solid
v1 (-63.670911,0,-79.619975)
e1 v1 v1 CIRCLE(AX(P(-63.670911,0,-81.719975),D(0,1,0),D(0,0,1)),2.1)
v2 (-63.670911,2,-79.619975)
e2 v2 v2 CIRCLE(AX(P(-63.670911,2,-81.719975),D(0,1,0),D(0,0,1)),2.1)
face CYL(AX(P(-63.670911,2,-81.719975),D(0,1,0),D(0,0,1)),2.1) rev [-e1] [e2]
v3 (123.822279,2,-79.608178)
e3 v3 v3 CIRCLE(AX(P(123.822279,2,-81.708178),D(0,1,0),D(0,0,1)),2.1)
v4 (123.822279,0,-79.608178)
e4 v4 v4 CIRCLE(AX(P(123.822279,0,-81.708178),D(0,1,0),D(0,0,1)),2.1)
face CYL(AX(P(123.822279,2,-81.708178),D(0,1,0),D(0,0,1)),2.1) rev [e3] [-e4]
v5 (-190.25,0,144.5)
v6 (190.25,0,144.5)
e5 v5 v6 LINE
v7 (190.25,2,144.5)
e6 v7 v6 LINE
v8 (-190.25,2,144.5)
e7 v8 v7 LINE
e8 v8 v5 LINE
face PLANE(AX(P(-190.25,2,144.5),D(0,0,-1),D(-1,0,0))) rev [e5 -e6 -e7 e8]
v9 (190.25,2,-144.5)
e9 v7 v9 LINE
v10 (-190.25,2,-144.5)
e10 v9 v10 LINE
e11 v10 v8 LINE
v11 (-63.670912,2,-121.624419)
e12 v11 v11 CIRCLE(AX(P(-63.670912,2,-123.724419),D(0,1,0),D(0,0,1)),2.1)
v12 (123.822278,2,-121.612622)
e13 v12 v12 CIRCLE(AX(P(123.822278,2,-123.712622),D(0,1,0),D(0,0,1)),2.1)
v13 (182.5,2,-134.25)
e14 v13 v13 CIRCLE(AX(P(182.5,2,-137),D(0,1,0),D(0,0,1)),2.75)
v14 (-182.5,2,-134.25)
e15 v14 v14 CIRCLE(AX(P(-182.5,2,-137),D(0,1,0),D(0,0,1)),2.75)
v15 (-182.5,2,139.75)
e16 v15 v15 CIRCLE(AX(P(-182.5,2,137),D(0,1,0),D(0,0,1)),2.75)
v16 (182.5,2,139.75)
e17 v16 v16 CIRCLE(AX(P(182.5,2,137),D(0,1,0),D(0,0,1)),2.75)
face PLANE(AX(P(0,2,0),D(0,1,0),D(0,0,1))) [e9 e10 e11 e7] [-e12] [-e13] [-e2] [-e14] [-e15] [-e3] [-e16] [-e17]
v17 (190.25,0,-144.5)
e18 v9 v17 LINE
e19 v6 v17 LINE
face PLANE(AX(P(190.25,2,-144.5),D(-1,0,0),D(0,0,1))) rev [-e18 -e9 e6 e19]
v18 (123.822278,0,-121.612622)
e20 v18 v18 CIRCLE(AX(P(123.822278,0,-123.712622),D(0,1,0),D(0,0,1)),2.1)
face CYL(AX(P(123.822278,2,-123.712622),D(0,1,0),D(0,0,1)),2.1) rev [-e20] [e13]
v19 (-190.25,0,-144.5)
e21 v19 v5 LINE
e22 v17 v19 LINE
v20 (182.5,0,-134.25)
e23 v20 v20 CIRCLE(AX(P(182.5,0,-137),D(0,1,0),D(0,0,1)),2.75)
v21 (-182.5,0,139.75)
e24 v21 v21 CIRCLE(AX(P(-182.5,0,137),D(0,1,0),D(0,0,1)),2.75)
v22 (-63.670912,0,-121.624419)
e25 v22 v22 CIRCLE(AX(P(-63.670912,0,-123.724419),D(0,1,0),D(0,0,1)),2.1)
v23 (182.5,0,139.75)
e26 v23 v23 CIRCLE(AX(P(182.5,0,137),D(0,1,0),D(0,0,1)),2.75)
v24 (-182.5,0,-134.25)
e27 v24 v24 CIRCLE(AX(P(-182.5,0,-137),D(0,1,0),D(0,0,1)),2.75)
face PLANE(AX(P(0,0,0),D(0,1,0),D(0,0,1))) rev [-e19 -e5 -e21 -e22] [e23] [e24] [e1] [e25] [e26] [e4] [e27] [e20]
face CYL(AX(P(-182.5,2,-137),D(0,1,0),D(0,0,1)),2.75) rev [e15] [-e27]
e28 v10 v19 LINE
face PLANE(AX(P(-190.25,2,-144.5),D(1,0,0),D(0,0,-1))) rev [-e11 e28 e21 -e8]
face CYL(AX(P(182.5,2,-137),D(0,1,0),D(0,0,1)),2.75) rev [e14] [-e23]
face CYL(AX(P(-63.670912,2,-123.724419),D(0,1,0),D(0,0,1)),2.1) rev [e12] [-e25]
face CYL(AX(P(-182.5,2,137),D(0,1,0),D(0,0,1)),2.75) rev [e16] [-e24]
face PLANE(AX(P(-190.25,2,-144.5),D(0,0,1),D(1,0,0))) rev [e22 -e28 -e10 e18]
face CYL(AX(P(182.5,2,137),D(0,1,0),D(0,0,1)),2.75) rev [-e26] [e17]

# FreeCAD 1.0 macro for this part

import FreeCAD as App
import Part
import Sketcher
from FreeCAD import Vector
Q = App.Units.Quantity

doc = App.newDocument("Part")
body = doc.addObject("PartDesign::Body", "Body")

sketch1 = doc.addObject("Sketcher::SketchObject", "Sketch")
body.addObject(sketch1)
sketch1.AttachmentSupport = (doc.XZ_Plane, [""])
sketch1.MapMode = "FlatFace"
sketch1.addGeometry(Part.LineSegment(Vector(-190, -144, 0), Vector(-190, 144, 0)), False)
sketch1.addGeometry(Part.LineSegment(Vector(-190, 144, 0), Vector(190, 144, 0)), False)
sketch1.addGeometry(Part.LineSegment(Vector(190, 144, 0), Vector(190, -144, 0)), False)
sketch1.addGeometry(Part.LineSegment(Vector(190, -144, 0), Vector(-190, -144, 0)), False)
sketch1.addConstraint(Sketcher.Constraint("Coincident", 0, 2, 1, 1))
sketch1.addConstraint(Sketcher.Constraint("Coincident", 1, 2, 2, 1))
sketch1.addConstraint(Sketcher.Constraint("Coincident", 2, 2, 3, 1))
sketch1.addConstraint(Sketcher.Constraint("Coincident", 3, 2, 0, 1))
sketch1.addConstraint(Sketcher.Constraint("Vertical", 0))
sketch1.addConstraint(Sketcher.Constraint("Horizontal", 1))
sketch1.addConstraint(Sketcher.Constraint("Vertical", 2))
sketch1.addConstraint(Sketcher.Constraint("Horizontal", 3))
sketch1.addConstraint(Sketcher.Constraint("Symmetric", 0, 2, 2, 2, -1, 1))
sketch1.addConstraint(Sketcher.Constraint("DistanceY", 0, 1, 0, 2, Q("289 mm")))
sketch1.addConstraint(Sketcher.Constraint("DistanceX", 1, 1, 1, 2, Q("380.5 mm")))
pad1 = doc.addObject("PartDesign::Pad", "Pad")
body.addObject(pad1)
pad1.Profile = sketch1
pad1.Length = 2
pad1.Reversed = True

sketch2 = doc.addObject("Sketcher::SketchObject", "Sketch001")
body.addObject(sketch2)
sketch2.AttachmentSupport = (doc.XZ_Plane, [""])
sketch2.MapMode = "FlatFace"
sketch2.AttachmentOffset = App.Placement(Vector(0, 0, -2), App.Rotation())
sketch2.addGeometry(Part.Circle(Vector(182.5, -137, 0), Vector(0, 0, 1), 2.8), False)
sketch2.addConstraint(Sketcher.Constraint("Diameter", 0, Q("5.5 mm")))
sketch2.addConstraint(Sketcher.Constraint("DistanceY", 0, 3, -1, 1, Q("137 mm")))
sketch2.addConstraint(Sketcher.Constraint("DistanceX", -1, 1, 0, 3, Q("182.5 mm")))
doc.recompute()
hole = doc.addObject("PartDesign::Hole", "Hole")
body.addObject(hole)
hole.Profile = sketch2
hole.ThreadType = "None"
hole.Diameter = 5.5
hole.DepthType = "ThroughAll"
hole.Reversed = True
doc.recompute()

mirrored = doc.addObject("PartDesign::Mirrored", "Mirrored")
body.addObject(mirrored)
mirrored.Originals = [hole]
mirrored.MirrorPlane = (doc.XY_Plane, [""])
body.Tip = mirrored
doc.recompute()

mirrored2 = doc.addObject("PartDesign::Mirrored", "Mirrored001")
body.addObject(mirrored2)
mirrored2.Originals = [hole]
mirrored2.MirrorPlane = (doc.YZ_Plane, [""])
body.Tip = mirrored2

sketch3 = doc.addObject("Sketcher::SketchObject", "Sketch002")
body.addObject(sketch3)
sketch3.AttachmentSupport = (doc.XZ_Plane, [""])
sketch3.MapMode = "FlatFace"
sketch3.AttachmentOffset = App.Placement(Vector(0, 0, -2), App.Rotation())
sketch3.addGeometry(Part.Circle(Vector(-182.5, 137, 0), Vector(0, 0, 1), 2.8), False)
sketch3.addConstraint(Sketcher.Constraint("Diameter", 0, Q("5.5 mm")))
sketch3.addConstraint(Sketcher.Constraint("DistanceY", -1, 1, 0, 3, Q("137 mm")))
sketch3.addConstraint(Sketcher.Constraint("DistanceX", 0, 3, -1, 1, Q("182.5 mm")))
doc.recompute()
hole2 = doc.addObject("PartDesign::Hole", "Hole001")
body.addObject(hole2)
hole2.Profile = sketch3
hole2.ThreadType = "None"
hole2.Diameter = 5.5
hole2.DepthType = "ThroughAll"
hole2.Reversed = True

sketch4 = doc.addObject("Sketcher::SketchObject", "Sketch003")
body.addObject(sketch4)
sketch4.AttachmentSupport = (doc.XZ_Plane, [""])
sketch4.MapMode = "FlatFace"
sketch4.AttachmentOffset = App.Placement(Vector(0, 0, -2), App.Rotation())
sketch4.addGeometry(Part.Circle(Vector(-63.7, -123.7, 0), Vector(0, 0, 1), 2.1), False)
sketch4.addGeometry(Part.Circle(Vector(-63.7, -81.7, 0), Vector(0, 0, 1), 2.1), False)
sketch4.addGeometry(Part.Circle(Vector(123.8, -81.7, 0), Vector(0, 0, 1), 2.1), False)
sketch4.addGeometry(Part.Circle(Vector(123.8, -123.7, 0), Vector(0, 0, 1), 2.1), False)
sketch4.addConstraint(Sketcher.Constraint("Equal", 0, 1))
sketch4.addConstraint(Sketcher.Constraint("Equal", 1, 2))
sketch4.addConstraint(Sketcher.Constraint("Equal", 2, 3))
sketch4.addConstraint(Sketcher.Constraint("Vertical", 0, 3, 1, 3))
sketch4.addConstraint(Sketcher.Constraint("Vertical", 2, 3, 3, 3))
sketch4.addConstraint(Sketcher.Constraint("Diameter", 0, Q("4.2 mm")))
sketch4.addConstraint(Sketcher.Constraint("DistanceX", 0, 3, -1, 1, Q("63.670912 mm")))
sketch4.addConstraint(Sketcher.Constraint("DistanceY", 0, 3, -1, 1, Q("123.724419 mm")))
sketch4.addConstraint(Sketcher.Constraint("DistanceX", -1, 1, 2, 3, Q("123.822279 mm")))
sketch4.addConstraint(Sketcher.Constraint("DistanceY", 2, 3, -1, 1, Q("81.708178 mm")))
sketch4.addConstraint(Sketcher.Constraint("DistanceY", 1, 3, -1, 1, Q("81.719975 mm")))
sketch4.addConstraint(Sketcher.Constraint("DistanceY", 3, 3, -1, 1, Q("123.712622 mm")))
doc.recompute()
hole3 = doc.addObject("PartDesign::Hole", "Hole002")
body.addObject(hole3)
hole3.Profile = sketch4
hole3.ThreadType = "None"
hole3.Diameter = 4.2
hole3.DepthType = "ThroughAll"
hole3.Reversed = True

doc.recompute()
